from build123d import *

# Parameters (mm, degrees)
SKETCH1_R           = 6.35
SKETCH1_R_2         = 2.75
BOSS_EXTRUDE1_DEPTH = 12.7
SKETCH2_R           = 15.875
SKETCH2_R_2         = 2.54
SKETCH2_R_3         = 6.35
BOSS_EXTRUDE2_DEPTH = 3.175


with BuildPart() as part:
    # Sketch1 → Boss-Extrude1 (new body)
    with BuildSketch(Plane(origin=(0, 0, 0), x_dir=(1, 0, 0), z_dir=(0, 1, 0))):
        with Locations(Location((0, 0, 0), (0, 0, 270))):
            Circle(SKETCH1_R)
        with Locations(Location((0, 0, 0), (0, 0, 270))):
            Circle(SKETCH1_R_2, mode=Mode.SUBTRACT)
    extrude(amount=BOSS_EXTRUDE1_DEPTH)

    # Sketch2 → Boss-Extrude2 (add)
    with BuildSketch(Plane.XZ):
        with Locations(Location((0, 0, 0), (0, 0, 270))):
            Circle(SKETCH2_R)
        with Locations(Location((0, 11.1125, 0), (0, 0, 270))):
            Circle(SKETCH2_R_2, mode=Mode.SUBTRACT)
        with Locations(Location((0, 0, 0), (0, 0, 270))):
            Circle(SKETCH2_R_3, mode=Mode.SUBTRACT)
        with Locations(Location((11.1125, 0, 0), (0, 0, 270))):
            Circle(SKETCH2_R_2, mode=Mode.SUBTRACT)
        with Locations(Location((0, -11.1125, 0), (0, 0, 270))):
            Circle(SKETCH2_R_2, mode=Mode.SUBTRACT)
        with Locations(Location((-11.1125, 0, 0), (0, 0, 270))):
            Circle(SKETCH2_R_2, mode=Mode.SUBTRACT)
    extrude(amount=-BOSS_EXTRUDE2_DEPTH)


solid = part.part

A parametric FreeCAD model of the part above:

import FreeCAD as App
import Part
import Sketcher
from FreeCAD import Vector
Q = App.Units.Quantity

doc = App.newDocument("Part")
body = doc.addObject("PartDesign::Body", "Body")

# Sketch on XZ plane
sketch1 = body.newObject("Sketcher::SketchObject", "Sketch")
sketch1.AttachmentSupport = (doc.getObject("XZ_Plane"), [""])
sketch1.MapMode = "FlatFace"
sketch1.addGeometry([
    Part.Circle(Vector(0, 0, 0), Vector(0, 0, 1), 6.3),
    Part.Circle(Vector(0, 0, 0), Vector(0, 0, 1), 2.8),
], False)
sketch1.addConstraint([
    Sketcher.Constraint("Coincident", 0, 3, -1, 1),
    Sketcher.Constraint("Coincident", 1, 3, -1, 1),
    Sketcher.Constraint("Diameter", 0, Q("0.5 in")),
    Sketcher.Constraint("Diameter", 1, Q("5.5 mm")),
])
pad1 = body.newObject("PartDesign::Pad", "Pad")
pad1.Profile = sketch1
pad1.Length = Q("0.5 in")
pad1.Reversed = True

# Sketch on XZ plane
sketch2 = body.newObject("Sketcher::SketchObject", "Sketch001")
sketch2.AttachmentSupport = (doc.getObject("XZ_Plane"), [""])
sketch2.MapMode = "FlatFace"
sketch2.addGeometry([
    Part.Circle(Vector(0, 0, 0), Vector(0, 0, 1), 15.9),  # 0
    Part.Circle(Vector(0, 11.1, 0), Vector(0, 0, 1), 2.5),  # 1
    Part.Circle(Vector(-11.1, 0, 0), Vector(0, 0, 1), 2.5),  # 2
    Part.Circle(Vector(11.1, 0, 0), Vector(0, 0, 1), 2.5),  # 3
    Part.Circle(Vector(0, 0, 0), Vector(0, 0, 1), 6.3),  # 4
    Part.Circle(Vector(0, -11.1, 0), Vector(0, 0, 1), 2.5),  # 5
], False)
sketch2.addConstraint([
    Sketcher.Constraint("Coincident", 0, 3, -1, 1),
    Sketcher.Constraint("Coincident", 4, 3, -1, 1),
    Sketcher.Constraint("Equal", 1, 2),
    Sketcher.Constraint("Equal", 2, 3),
    Sketcher.Constraint("Equal", 3, 5),
    Sketcher.Constraint("Symmetric", 2, 3, 3, 3, -1, 1),
    Sketcher.Constraint("Symmetric", 1, 3, 5, 3, -1, 1),
    Sketcher.Constraint("PointOnObject", 1, 3, -2),
    Sketcher.Constraint("PointOnObject", 2, 3, -1),
    Sketcher.Constraint("Diameter", 1, Q("0.2 in")),
    Sketcher.Constraint("Diameter", 4, Q("0.5 in")),
    Sketcher.Constraint("Diameter", 0, Q("1.25 in")),
    Sketcher.Constraint("DistanceY", -1, 1, 1, 3, Q("0.4375 in")),
    Sketcher.Constraint("DistanceX", 2, 3, -1, 1, Q("0.4375 in")),
])
pad2 = body.newObject("PartDesign::Pad", "Pad001")
pad2.Profile = sketch2
pad2.Length = Q("0.125 in")
pad2.Reversed = True

doc.recompute()
